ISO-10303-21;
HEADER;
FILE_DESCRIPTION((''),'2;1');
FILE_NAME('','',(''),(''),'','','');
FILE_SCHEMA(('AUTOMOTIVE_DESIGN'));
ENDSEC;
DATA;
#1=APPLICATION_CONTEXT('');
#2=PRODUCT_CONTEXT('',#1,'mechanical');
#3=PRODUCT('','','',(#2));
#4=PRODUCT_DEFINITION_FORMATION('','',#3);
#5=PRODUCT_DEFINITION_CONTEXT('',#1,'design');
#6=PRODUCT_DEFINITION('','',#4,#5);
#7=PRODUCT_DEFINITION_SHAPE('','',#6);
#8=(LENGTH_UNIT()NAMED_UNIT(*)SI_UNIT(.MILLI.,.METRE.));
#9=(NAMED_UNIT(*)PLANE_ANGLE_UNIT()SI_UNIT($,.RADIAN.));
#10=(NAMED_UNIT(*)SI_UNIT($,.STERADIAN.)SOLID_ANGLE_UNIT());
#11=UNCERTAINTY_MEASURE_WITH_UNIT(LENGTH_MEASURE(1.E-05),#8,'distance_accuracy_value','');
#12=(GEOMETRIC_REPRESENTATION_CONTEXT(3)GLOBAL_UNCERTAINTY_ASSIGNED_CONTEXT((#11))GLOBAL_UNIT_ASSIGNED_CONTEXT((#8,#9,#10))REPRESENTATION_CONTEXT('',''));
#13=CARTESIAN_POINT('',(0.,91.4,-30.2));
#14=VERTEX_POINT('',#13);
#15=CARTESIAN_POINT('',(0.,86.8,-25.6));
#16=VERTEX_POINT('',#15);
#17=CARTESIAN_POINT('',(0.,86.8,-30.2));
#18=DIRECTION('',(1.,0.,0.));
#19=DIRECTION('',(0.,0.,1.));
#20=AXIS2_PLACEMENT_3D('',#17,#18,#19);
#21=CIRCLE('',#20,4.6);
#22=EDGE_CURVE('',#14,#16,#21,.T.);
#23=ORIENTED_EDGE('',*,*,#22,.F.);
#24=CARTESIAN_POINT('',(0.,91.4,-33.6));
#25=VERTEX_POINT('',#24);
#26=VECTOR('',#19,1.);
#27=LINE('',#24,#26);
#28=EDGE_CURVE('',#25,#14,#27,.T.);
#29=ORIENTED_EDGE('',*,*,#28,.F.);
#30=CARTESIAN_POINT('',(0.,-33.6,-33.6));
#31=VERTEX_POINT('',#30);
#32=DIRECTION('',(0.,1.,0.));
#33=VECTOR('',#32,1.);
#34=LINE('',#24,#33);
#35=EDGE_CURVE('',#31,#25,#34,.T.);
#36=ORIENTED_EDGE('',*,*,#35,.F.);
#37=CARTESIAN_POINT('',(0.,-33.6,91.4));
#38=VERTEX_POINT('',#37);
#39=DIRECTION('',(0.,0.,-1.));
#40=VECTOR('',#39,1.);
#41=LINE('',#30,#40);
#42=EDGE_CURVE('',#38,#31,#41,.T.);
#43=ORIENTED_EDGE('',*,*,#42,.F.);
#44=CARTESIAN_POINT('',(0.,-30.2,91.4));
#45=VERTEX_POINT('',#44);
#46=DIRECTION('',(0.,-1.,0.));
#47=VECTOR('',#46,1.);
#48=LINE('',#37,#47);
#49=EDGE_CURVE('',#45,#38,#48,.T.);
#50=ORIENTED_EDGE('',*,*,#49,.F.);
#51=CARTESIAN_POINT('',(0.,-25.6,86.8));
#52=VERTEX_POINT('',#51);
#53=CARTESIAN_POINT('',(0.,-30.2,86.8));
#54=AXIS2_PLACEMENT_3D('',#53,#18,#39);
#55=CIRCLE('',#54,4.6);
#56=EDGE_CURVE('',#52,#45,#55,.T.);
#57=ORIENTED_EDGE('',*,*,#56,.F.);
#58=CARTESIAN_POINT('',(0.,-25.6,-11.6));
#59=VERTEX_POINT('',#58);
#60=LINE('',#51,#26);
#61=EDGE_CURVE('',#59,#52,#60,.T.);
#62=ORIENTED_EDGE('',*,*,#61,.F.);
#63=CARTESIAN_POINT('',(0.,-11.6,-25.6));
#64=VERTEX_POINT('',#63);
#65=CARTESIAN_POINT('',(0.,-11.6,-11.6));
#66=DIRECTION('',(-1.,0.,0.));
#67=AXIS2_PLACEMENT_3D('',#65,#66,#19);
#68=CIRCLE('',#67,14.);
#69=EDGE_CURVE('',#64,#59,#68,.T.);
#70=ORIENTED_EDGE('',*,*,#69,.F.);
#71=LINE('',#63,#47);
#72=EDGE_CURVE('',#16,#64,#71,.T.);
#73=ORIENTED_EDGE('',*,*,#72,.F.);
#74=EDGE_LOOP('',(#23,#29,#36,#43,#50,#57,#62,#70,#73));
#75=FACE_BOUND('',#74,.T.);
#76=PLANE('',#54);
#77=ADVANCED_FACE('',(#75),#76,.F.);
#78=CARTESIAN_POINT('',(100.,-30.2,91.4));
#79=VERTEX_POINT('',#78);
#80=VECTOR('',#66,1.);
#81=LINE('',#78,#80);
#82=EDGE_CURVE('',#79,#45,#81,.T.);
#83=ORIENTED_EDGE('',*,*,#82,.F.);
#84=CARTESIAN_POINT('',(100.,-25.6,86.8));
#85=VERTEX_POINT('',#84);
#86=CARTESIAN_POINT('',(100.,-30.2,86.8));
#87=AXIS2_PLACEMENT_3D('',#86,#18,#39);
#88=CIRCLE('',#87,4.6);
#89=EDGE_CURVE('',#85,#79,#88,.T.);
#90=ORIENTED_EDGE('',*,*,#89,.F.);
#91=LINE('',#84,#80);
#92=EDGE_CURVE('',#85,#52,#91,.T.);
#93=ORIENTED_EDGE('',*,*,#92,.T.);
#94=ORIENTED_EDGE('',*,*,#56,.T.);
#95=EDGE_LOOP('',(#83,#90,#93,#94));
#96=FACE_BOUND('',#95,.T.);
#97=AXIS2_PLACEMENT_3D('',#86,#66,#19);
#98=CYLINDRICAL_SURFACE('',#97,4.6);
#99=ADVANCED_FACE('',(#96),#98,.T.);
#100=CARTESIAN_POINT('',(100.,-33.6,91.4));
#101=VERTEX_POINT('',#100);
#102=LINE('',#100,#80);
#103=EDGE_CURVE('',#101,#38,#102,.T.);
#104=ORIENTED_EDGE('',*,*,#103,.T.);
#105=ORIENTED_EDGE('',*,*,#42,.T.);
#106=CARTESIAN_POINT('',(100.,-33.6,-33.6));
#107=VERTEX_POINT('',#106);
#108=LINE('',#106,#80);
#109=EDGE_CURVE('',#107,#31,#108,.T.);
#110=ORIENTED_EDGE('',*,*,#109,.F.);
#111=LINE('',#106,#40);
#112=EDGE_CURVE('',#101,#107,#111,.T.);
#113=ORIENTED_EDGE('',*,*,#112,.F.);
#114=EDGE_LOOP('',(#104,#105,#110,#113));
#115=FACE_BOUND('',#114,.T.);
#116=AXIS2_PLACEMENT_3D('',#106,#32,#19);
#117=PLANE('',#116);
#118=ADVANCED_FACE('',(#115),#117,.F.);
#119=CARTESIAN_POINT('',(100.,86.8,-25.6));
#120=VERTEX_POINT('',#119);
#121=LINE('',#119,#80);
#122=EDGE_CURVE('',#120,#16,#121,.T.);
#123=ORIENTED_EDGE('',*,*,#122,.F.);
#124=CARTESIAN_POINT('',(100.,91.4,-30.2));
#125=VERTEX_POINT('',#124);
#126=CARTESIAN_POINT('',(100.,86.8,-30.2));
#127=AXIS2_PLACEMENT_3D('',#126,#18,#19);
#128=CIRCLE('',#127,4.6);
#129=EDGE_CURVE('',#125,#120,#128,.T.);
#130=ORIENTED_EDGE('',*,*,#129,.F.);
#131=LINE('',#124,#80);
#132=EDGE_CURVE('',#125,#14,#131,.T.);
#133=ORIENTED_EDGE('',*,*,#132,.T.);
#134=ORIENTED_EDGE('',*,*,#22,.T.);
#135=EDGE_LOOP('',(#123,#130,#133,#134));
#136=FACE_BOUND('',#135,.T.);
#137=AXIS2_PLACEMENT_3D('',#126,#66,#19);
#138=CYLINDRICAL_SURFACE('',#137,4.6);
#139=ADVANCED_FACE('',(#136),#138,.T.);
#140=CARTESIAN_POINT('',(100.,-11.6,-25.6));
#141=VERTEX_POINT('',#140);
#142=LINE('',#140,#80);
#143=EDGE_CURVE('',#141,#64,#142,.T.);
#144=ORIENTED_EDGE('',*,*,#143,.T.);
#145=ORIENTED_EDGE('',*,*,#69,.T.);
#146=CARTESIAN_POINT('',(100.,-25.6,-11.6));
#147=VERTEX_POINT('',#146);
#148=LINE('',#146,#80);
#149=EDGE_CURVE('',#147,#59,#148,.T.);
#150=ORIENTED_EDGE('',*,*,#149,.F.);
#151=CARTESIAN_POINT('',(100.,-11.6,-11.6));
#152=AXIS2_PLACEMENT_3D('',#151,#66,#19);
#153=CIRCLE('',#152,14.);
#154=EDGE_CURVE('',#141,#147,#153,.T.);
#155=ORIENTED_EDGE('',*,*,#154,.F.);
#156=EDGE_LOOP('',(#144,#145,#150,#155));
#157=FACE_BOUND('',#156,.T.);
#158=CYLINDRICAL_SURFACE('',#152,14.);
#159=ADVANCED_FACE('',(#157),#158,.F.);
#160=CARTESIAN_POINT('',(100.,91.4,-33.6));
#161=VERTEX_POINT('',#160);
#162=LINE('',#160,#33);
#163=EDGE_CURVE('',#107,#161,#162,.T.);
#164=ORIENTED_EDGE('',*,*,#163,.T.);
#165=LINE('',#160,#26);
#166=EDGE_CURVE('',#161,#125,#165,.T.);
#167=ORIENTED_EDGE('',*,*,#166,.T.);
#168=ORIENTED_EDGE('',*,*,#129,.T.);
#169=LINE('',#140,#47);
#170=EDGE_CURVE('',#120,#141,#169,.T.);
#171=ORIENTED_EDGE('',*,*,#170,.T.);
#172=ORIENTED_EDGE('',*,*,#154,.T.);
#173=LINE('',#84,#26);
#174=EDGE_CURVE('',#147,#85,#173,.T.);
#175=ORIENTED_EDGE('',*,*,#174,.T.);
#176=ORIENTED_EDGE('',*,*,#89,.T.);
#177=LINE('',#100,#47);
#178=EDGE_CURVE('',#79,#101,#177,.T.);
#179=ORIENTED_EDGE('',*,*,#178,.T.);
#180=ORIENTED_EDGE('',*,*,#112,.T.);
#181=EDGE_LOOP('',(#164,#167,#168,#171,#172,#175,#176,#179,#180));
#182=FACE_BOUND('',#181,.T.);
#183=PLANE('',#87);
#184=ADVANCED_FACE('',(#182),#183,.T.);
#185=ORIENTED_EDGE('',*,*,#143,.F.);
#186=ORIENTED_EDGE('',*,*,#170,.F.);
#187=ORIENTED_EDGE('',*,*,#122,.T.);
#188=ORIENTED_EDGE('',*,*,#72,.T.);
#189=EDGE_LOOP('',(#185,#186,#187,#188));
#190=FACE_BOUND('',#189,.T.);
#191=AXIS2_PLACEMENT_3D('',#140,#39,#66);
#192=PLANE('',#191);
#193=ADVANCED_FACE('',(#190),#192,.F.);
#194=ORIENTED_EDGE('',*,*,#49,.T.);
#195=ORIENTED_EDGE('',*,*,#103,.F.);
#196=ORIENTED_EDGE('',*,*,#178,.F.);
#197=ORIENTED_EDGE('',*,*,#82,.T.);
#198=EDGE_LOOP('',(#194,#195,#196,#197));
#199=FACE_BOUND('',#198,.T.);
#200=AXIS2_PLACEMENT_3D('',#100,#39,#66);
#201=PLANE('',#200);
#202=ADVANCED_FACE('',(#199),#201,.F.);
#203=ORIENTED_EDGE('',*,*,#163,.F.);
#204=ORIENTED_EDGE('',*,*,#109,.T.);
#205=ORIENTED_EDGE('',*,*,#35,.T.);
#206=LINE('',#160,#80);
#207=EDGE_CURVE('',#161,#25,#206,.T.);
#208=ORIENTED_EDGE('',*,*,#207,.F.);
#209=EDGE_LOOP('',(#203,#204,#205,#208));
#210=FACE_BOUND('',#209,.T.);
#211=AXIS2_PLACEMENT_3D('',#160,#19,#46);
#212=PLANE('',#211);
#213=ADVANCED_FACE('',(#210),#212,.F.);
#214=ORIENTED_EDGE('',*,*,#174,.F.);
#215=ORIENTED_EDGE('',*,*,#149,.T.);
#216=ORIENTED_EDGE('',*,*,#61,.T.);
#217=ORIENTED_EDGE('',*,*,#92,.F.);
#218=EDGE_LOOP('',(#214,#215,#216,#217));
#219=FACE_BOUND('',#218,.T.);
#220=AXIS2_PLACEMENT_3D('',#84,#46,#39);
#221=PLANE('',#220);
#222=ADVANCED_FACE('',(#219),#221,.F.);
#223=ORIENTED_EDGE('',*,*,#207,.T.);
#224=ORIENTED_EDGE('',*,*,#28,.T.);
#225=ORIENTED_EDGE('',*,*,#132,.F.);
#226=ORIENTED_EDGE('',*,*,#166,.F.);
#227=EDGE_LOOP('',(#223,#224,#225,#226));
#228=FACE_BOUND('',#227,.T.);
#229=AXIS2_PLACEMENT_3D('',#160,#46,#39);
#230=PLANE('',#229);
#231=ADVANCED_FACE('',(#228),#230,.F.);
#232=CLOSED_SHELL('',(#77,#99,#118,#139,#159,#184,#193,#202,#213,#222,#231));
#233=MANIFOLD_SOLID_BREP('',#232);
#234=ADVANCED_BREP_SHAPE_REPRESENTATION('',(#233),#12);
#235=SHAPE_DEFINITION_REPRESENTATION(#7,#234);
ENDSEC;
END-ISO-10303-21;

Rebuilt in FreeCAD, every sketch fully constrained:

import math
import FreeCAD as App
import Part
import Sketcher
from FreeCAD import Vector

doc = App.newDocument("Part")
params = doc.addObject("Spreadsheet::Sheet", "Params")
for row, (alias, value) in enumerate([
    ("sketch1_radius", "14 mm"),
    ("sketch1_radius2", "4.6 mm"),
    ("sketch1_width", "125 mm"),
    ("sketch1_width2", "98.4 mm"),
    ("pad1_length", "100 mm"),
], start=1):
    params.set(f"A{row}", alias)
    params.set(f"B{row}", "=" + value)
    params.setAlias(f"B{row}", alias)

body = doc.addObject("PartDesign::Body", "Body")

# Sketch on YZ plane
sketch1 = doc.addObject("Sketcher::SketchObject", "Sketch")
body.addObject(sketch1)
sketch1.AttachmentSupport = (doc.YZ_Plane, [""])
sketch1.MapMode = "FlatFace"
sketch1.addGeometry([
    Part.LineSegment(Vector(-33.6, 91.4, 0), Vector(-33.6, -33.6, 0)),  # 0
    Part.LineSegment(Vector(-33.6, -33.6, 0), Vector(91.4, -33.6, 0)),  # 1
    Part.LineSegment(Vector(91.4, -33.6, 0), Vector(91.4, -30.2, 0)),  # 2
    Part.ArcOfCircle(Part.Circle(Vector(86.8, -30.2, 0), Vector(0, 0, 1), 4.6), math.radians(0), math.radians(90)),  # 3
    Part.LineSegment(Vector(86.8, -25.6, 0), Vector(-11.6, -25.6, 0)),  # 4
    Part.ArcOfCircle(Part.Circle(Vector(-11.6, -11.6, 0), Vector(0, 0, 1), 14), math.radians(180), math.radians(270)),  # 5
    Part.LineSegment(Vector(-25.6, -11.6, 0), Vector(-25.6, 86.8, 0)),  # 6
    Part.ArcOfCircle(Part.Circle(Vector(-30.2, 86.8, 0), Vector(0, 0, 1), 4.6), math.radians(0), math.radians(90)),  # 7
    Part.LineSegment(Vector(-30.2, 91.4, 0), Vector(-33.6, 91.4, 0)),  # 8
], False)
sketch1.addConstraint([
    Sketcher.Constraint("Coincident", 0, 2, 1, 1),
    Sketcher.Constraint("Coincident", 1, 2, 2, 1),
    Sketcher.Constraint("Tangent", 2, 2, 3, 1),
    Sketcher.Constraint("Tangent", 3, 2, 4, 1),
    Sketcher.Constraint("Tangent", 4, 2, 5, 2),
    Sketcher.Constraint("Tangent", 5, 1, 6, 1),
    Sketcher.Constraint("Tangent", 6, 2, 7, 1),
    Sketcher.Constraint("Tangent", 7, 2, 8, 1),
    Sketcher.Constraint("Coincident", 8, 2, 0, 1),
    Sketcher.Constraint("Vertical", 0),
    Sketcher.Constraint("Horizontal", 1),
    Sketcher.Constraint("Vertical", 2),
    Sketcher.Constraint("Horizontal", 4),
    Sketcher.Constraint("Vertical", 6),
    Sketcher.Constraint("Horizontal", 8),
    Sketcher.Constraint("Equal", 3, 7),
    Sketcher.Constraint("Equal", 1, 0),
    Sketcher.Constraint("Equal", 8, 2),
    Sketcher.Constraint("Radius", 5, 14.0),
    Sketcher.Constraint("Radius", 3, 4.6),
    Sketcher.Constraint("DistanceX", 1, 1, 1, 2, 125.0),
    Sketcher.Constraint("DistanceX", 4, 2, 4, 1, 98.4),
    Sketcher.Constraint("DistanceX", -1, 1, 3, 3, 86.8),
    Sketcher.Constraint("DistanceY", 3, 3, -1, 1, 30.2),
])
sketch1.setExpression("Constraints[18]", "Params.sketch1_radius")
sketch1.setExpression("Constraints[19]", "Params.sketch1_radius2")
sketch1.setExpression("Constraints[20]", "Params.sketch1_width")
sketch1.setExpression("Constraints[21]", "Params.sketch1_width2")
pad1 = doc.addObject("PartDesign::Pad", "Pad")
body.addObject(pad1)
pad1.Profile = sketch1
pad1.setExpression("Length", "Params.pad1_length")

doc.recompute()
